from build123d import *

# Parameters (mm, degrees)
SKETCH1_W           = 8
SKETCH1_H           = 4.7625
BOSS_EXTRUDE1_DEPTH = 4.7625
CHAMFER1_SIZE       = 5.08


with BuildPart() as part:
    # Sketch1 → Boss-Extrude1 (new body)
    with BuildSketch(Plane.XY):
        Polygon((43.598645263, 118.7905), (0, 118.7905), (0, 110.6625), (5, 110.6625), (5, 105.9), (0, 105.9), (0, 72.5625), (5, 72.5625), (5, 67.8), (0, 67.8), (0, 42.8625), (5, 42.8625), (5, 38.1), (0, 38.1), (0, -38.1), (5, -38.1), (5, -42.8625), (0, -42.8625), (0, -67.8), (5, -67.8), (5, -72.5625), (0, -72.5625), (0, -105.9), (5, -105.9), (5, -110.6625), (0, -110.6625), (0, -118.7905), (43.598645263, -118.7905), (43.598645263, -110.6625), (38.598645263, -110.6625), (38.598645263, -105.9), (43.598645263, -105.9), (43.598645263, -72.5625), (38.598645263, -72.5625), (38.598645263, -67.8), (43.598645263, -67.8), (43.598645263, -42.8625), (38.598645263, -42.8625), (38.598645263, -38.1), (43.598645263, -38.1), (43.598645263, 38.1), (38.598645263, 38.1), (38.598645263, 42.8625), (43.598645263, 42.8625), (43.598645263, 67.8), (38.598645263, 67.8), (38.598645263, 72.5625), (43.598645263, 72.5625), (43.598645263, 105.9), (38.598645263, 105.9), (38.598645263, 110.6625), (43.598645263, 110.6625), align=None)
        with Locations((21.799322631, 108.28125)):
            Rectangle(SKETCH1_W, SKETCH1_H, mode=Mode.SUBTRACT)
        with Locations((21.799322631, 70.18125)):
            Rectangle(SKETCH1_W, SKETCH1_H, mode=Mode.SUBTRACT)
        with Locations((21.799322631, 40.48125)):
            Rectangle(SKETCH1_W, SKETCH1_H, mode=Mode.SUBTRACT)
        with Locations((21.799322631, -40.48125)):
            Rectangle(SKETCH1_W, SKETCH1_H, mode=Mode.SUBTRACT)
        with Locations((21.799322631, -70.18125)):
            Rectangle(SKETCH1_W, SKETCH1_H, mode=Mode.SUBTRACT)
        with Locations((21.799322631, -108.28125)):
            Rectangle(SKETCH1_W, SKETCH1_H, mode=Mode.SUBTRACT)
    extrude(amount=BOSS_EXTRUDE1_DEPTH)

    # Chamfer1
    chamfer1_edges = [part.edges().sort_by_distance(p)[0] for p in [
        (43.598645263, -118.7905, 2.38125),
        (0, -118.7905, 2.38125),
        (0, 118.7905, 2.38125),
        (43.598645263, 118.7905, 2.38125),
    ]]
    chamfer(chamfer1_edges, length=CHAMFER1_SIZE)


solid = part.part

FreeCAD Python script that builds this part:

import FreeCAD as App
import Part
import Sketcher
Q = App.Units.Quantity


def edges_at(feature, points):
    """Names of the edges that pass closest to the given points."""
    edges = feature.Shape.Edges
    near = lambda p: min(range(len(edges)), key=lambda i: edges[i].distToShape(Part.Vertex(*p))[0])
    return sorted({f"Edge{near(p) + 1}" for p in points})


def add_polygon(sketch, points):
    """Adds a closed chain of lines whose ends are joined by coincident constraints."""
    first, n = sketch.GeometryCount, len(points)
    for a, b in zip(points, points[1:] + points[:1]):
        sketch.addGeometry(Part.LineSegment(App.Vector(*a, 0), App.Vector(*b, 0)), False)
    for i in range(n):
        sketch.addConstraint(Sketcher.Constraint("Coincident", first + i, 2, first + (i + 1) % n, 1))

doc = App.newDocument("Part")
body = doc.addObject("PartDesign::Body", "Body")

# Sketch on XY plane
sketch1 = body.newObject("Sketcher::SketchObject", "Sketch")
sketch1.AttachmentSupport = (doc.getObject("XY_Plane"), [""])
sketch1.MapMode = "FlatFace"
add_polygon(sketch1, [(43.6, 118.8), (0, 118.8), (0, 110.7), (5, 110.7), (5, 105.9), (0, 105.9), (0, 72.6), (5, 72.6), (5, 67.8), (0, 67.8), (0, 42.9), (5, 42.9), (5, 38.1), (0, 38.1), (0, -38.1), (5, -38.1), (5, -42.9), (0, -42.9), (0, -67.8), (5, -67.8), (5, -72.6), (0, -72.6), (0, -105.9), (5, -105.9), (5, -110.7), (0, -110.7), (0, -118.8), (43.6, -118.8), (43.6, -110.7), (38.6, -110.7), (38.6, -105.9), (43.6, -105.9), (43.6, -72.6), (38.6, -72.6), (38.6, -67.8), (43.6, -67.8), (43.6, -42.9), (38.6, -42.9), (38.6, -38.1), (43.6, -38.1), (43.6, 38.1), (38.6, 38.1), (38.6, 42.9), (43.6, 42.9), (43.6, 67.8), (38.6, 67.8), (38.6, 72.6), (43.6, 72.6), (43.6, 105.9), (38.6, 105.9), (38.6, 110.7), (43.6, 110.7)])  # lines 0-51
add_polygon(sketch1, [(25.8, -110.7), (17.8, -110.7), (17.8, -105.9), (25.8, -105.9)])  # lines 52-55
add_polygon(sketch1, [(25.8, -72.6), (17.8, -72.6), (17.8, -67.8), (25.8, -67.8)])  # lines 56-59
add_polygon(sketch1, [(25.8, -42.9), (17.8, -42.9), (17.8, -38.1), (25.8, -38.1)])  # lines 60-63
add_polygon(sketch1, [(25.8, 38.1), (17.8, 38.1), (17.8, 42.9), (25.8, 42.9)])  # lines 64-67
add_polygon(sketch1, [(25.8, 67.8), (17.8, 67.8), (17.8, 72.6), (25.8, 72.6)])  # lines 68-71
add_polygon(sketch1, [(25.8, 105.9), (17.8, 105.9), (17.8, 110.7), (25.8, 110.7)])  # lines 72-75
sketch1.addConstraint([
    Sketcher.Constraint("Horizontal", 0),
    Sketcher.Constraint("Vertical", 1),
    Sketcher.Constraint("Horizontal", 2),
    Sketcher.Constraint("Vertical", 3),
    Sketcher.Constraint("Horizontal", 4),
    Sketcher.Constraint("Vertical", 5),
    Sketcher.Constraint("Horizontal", 6),
    Sketcher.Constraint("Vertical", 7),
    Sketcher.Constraint("Horizontal", 8),
    Sketcher.Constraint("Vertical", 9),
    Sketcher.Constraint("Horizontal", 10),
    Sketcher.Constraint("Vertical", 11),
    Sketcher.Constraint("Horizontal", 12),
    Sketcher.Constraint("Vertical", 13),
    Sketcher.Constraint("Horizontal", 14),
    Sketcher.Constraint("Vertical", 15),
    Sketcher.Constraint("Horizontal", 16),
    Sketcher.Constraint("Vertical", 17),
    Sketcher.Constraint("Horizontal", 18),
    Sketcher.Constraint("Vertical", 19),
    Sketcher.Constraint("Horizontal", 20),
    Sketcher.Constraint("Vertical", 21),
    Sketcher.Constraint("Horizontal", 22),
    Sketcher.Constraint("Vertical", 23),
    Sketcher.Constraint("Horizontal", 24),
    Sketcher.Constraint("Vertical", 25),
    Sketcher.Constraint("Horizontal", 26),
    Sketcher.Constraint("Vertical", 27),
    Sketcher.Constraint("Horizontal", 28),
    Sketcher.Constraint("Vertical", 29),
    Sketcher.Constraint("Horizontal", 30),
    Sketcher.Constraint("Vertical", 31),
    Sketcher.Constraint("Horizontal", 32),
    Sketcher.Constraint("Vertical", 33),
    Sketcher.Constraint("Horizontal", 34),
    Sketcher.Constraint("Vertical", 35),
    Sketcher.Constraint("Horizontal", 36),
    Sketcher.Constraint("Vertical", 37),
    Sketcher.Constraint("Horizontal", 38),
    Sketcher.Constraint("Vertical", 39),
    Sketcher.Constraint("Horizontal", 40),
    Sketcher.Constraint("Vertical", 41),
    Sketcher.Constraint("Horizontal", 42),
    Sketcher.Constraint("Vertical", 43),
    Sketcher.Constraint("Horizontal", 44),
    Sketcher.Constraint("Vertical", 45),
    Sketcher.Constraint("Horizontal", 46),
    Sketcher.Constraint("Vertical", 47),
    Sketcher.Constraint("Horizontal", 48),
    Sketcher.Constraint("Vertical", 49),
    Sketcher.Constraint("Horizontal", 50),
    Sketcher.Constraint("Vertical", 51),
    Sketcher.Constraint("Horizontal", 52),
    Sketcher.Constraint("Vertical", 53),
    Sketcher.Constraint("Horizontal", 54),
    Sketcher.Constraint("Vertical", 55),
    Sketcher.Constraint("Horizontal", 56),
    Sketcher.Constraint("Vertical", 57),
    Sketcher.Constraint("Horizontal", 58),
    Sketcher.Constraint("Vertical", 59),
    Sketcher.Constraint("Horizontal", 60),
    Sketcher.Constraint("Vertical", 61),
    Sketcher.Constraint("Horizontal", 62),
    Sketcher.Constraint("Vertical", 63),
    Sketcher.Constraint("Horizontal", 64),
    Sketcher.Constraint("Vertical", 65),
    Sketcher.Constraint("Horizontal", 66),
    Sketcher.Constraint("Vertical", 67),
    Sketcher.Constraint("Horizontal", 68),
    Sketcher.Constraint("Vertical", 69),
    Sketcher.Constraint("Horizontal", 70),
    Sketcher.Constraint("Vertical", 71),
    Sketcher.Constraint("Horizontal", 72),
    Sketcher.Constraint("Vertical", 73),
    Sketcher.Constraint("Horizontal", 74),
    Sketcher.Constraint("Vertical", 75),
    Sketcher.Constraint("Symmetric", 12, 2, 13, 2, -1, 1),
    Sketcher.Constraint("Symmetric", 9, 2, 16, 2, -1, 1),
    Sketcher.Constraint("Symmetric", 5, 2, 20, 2, -1, 1),
    Sketcher.Constraint("Symmetric", 1, 2, 24, 2, -1, 1),
    Sketcher.Constraint("Symmetric", 8, 2, 17, 2, -1),
    Sketcher.Constraint("Symmetric", 4, 2, 21, 2, -1),
    Sketcher.Constraint("Symmetric", 0, 2, 25, 2, -1),
    Sketcher.Constraint("Symmetric", 37, 2, 40, 2, -1),
    Sketcher.Constraint("Symmetric", 35, 2, 42, 2, -1),
    Sketcher.Constraint("Symmetric", 33, 2, 44, 2, -1),
    Sketcher.Constraint("Symmetric", 31, 2, 46, 2, -1),
    Sketcher.Constraint("Symmetric", 29, 2, 48, 2, -1),
    Sketcher.Constraint("Symmetric", 27, 2, 50, 2, -1),
    Sketcher.Constraint("Symmetric", 61, 2, 64, 2, -1),
    Sketcher.Constraint("Symmetric", 63, 2, 66, 2, -1),
    Sketcher.Constraint("Symmetric", 57, 2, 68, 2, -1),
    Sketcher.Constraint("Symmetric", 59, 2, 70, 2, -1),
    Sketcher.Constraint("Symmetric", 53, 2, 72, 2, -1),
    Sketcher.Constraint("Symmetric", 55, 2, 74, 2, -1),
    Sketcher.Constraint("Horizontal", 24, 2, 27, 2),
    Sketcher.Constraint("Horizontal", 22, 2, 29, 2),
    Sketcher.Constraint("Horizontal", 20, 2, 31, 2),
    Sketcher.Constraint("Horizontal", 18, 2, 33, 2),
    Sketcher.Constraint("Horizontal", 16, 2, 35, 2),
    Sketcher.Constraint("Horizontal", 14, 2, 37, 2),
    Sketcher.Constraint("Horizontal", 28, 2, 52, 2),
    Sketcher.Constraint("Horizontal", 30, 2, 53, 2),
    Sketcher.Constraint("Horizontal", 32, 2, 56, 2),
    Sketcher.Constraint("Horizontal", 34, 2, 57, 2),
    Sketcher.Constraint("Horizontal", 36, 2, 60, 2),
    Sketcher.Constraint("Horizontal", 38, 2, 61, 2),
    Sketcher.Constraint("Vertical", 3, 2, 6, 2),
    Sketcher.Constraint("Vertical", 7, 2, 10, 2),
    Sketcher.Constraint("Vertical", 11, 2, 14, 2),
    Sketcher.Constraint("Vertical", 15, 2, 18, 2),
    Sketcher.Constraint("Vertical", 19, 2, 22, 2),
    Sketcher.Constraint("Vertical", 27, 2, 30, 2),
    Sketcher.Constraint("Vertical", 29, 2, 32, 2),
    Sketcher.Constraint("Vertical", 31, 2, 34, 2),
    Sketcher.Constraint("Vertical", 33, 2, 36, 2),
    Sketcher.Constraint("Vertical", 35, 2, 38, 2),
    Sketcher.Constraint("Vertical", 53, 2, 56, 2),
    Sketcher.Constraint("Vertical", 55, 2, 58, 2),
    Sketcher.Constraint("Vertical", 57, 2, 60, 2),
    Sketcher.Constraint("Vertical", 59, 2, 62, 2),
    Sketcher.Constraint("Equal", 24, 28),
    Sketcher.Constraint("Equal", 3, 7),
    Sketcher.Constraint("Equal", 7, 11),
    Sketcher.Constraint("DistanceY", 13, 2, 13, 1, Q("3 in")),
    Sketcher.Constraint("DistanceY", 1, 2, 1, 1, Q("0.32 in")),
    Sketcher.Constraint("DistanceY", 3, 2, 3, 1, Q("0.1875 in")),
    Sketcher.Constraint("DistanceY", 5, 2, 5, 1, Q("1.3125 in")),
    Sketcher.Constraint("DistanceX", 2, 1, 2, 2, 5.0),
    Sketcher.Constraint("DistanceX", 52, 2, 52, 1, 8.0),
    Sketcher.Constraint("DistanceY", 9, 2, 9, 1, 24.9375),
    Sketcher.Constraint("DistanceX", 0, 2, 0, 1, 43.598645),
    Sketcher.Constraint("DistanceX", -1, 1, 52, 2, 17.799323),
])
pad1 = body.newObject("PartDesign::Pad", "Pad")
pad1.Profile = sketch1
pad1.Length = Q("0.1875 in")
doc.recompute()

chamfer = body.newObject("PartDesign::Chamfer", "Chamfer")
chamfer.Base = (pad1, edges_at(pad1, [
    (43.599, -118.79, 2.381),
    (0, -118.79, 2.381),
    (0, 118.79, 2.381),
    (43.599, 118.79, 2.381),
]))
chamfer.Size = Q("0.2 in")

doc.recompute()
